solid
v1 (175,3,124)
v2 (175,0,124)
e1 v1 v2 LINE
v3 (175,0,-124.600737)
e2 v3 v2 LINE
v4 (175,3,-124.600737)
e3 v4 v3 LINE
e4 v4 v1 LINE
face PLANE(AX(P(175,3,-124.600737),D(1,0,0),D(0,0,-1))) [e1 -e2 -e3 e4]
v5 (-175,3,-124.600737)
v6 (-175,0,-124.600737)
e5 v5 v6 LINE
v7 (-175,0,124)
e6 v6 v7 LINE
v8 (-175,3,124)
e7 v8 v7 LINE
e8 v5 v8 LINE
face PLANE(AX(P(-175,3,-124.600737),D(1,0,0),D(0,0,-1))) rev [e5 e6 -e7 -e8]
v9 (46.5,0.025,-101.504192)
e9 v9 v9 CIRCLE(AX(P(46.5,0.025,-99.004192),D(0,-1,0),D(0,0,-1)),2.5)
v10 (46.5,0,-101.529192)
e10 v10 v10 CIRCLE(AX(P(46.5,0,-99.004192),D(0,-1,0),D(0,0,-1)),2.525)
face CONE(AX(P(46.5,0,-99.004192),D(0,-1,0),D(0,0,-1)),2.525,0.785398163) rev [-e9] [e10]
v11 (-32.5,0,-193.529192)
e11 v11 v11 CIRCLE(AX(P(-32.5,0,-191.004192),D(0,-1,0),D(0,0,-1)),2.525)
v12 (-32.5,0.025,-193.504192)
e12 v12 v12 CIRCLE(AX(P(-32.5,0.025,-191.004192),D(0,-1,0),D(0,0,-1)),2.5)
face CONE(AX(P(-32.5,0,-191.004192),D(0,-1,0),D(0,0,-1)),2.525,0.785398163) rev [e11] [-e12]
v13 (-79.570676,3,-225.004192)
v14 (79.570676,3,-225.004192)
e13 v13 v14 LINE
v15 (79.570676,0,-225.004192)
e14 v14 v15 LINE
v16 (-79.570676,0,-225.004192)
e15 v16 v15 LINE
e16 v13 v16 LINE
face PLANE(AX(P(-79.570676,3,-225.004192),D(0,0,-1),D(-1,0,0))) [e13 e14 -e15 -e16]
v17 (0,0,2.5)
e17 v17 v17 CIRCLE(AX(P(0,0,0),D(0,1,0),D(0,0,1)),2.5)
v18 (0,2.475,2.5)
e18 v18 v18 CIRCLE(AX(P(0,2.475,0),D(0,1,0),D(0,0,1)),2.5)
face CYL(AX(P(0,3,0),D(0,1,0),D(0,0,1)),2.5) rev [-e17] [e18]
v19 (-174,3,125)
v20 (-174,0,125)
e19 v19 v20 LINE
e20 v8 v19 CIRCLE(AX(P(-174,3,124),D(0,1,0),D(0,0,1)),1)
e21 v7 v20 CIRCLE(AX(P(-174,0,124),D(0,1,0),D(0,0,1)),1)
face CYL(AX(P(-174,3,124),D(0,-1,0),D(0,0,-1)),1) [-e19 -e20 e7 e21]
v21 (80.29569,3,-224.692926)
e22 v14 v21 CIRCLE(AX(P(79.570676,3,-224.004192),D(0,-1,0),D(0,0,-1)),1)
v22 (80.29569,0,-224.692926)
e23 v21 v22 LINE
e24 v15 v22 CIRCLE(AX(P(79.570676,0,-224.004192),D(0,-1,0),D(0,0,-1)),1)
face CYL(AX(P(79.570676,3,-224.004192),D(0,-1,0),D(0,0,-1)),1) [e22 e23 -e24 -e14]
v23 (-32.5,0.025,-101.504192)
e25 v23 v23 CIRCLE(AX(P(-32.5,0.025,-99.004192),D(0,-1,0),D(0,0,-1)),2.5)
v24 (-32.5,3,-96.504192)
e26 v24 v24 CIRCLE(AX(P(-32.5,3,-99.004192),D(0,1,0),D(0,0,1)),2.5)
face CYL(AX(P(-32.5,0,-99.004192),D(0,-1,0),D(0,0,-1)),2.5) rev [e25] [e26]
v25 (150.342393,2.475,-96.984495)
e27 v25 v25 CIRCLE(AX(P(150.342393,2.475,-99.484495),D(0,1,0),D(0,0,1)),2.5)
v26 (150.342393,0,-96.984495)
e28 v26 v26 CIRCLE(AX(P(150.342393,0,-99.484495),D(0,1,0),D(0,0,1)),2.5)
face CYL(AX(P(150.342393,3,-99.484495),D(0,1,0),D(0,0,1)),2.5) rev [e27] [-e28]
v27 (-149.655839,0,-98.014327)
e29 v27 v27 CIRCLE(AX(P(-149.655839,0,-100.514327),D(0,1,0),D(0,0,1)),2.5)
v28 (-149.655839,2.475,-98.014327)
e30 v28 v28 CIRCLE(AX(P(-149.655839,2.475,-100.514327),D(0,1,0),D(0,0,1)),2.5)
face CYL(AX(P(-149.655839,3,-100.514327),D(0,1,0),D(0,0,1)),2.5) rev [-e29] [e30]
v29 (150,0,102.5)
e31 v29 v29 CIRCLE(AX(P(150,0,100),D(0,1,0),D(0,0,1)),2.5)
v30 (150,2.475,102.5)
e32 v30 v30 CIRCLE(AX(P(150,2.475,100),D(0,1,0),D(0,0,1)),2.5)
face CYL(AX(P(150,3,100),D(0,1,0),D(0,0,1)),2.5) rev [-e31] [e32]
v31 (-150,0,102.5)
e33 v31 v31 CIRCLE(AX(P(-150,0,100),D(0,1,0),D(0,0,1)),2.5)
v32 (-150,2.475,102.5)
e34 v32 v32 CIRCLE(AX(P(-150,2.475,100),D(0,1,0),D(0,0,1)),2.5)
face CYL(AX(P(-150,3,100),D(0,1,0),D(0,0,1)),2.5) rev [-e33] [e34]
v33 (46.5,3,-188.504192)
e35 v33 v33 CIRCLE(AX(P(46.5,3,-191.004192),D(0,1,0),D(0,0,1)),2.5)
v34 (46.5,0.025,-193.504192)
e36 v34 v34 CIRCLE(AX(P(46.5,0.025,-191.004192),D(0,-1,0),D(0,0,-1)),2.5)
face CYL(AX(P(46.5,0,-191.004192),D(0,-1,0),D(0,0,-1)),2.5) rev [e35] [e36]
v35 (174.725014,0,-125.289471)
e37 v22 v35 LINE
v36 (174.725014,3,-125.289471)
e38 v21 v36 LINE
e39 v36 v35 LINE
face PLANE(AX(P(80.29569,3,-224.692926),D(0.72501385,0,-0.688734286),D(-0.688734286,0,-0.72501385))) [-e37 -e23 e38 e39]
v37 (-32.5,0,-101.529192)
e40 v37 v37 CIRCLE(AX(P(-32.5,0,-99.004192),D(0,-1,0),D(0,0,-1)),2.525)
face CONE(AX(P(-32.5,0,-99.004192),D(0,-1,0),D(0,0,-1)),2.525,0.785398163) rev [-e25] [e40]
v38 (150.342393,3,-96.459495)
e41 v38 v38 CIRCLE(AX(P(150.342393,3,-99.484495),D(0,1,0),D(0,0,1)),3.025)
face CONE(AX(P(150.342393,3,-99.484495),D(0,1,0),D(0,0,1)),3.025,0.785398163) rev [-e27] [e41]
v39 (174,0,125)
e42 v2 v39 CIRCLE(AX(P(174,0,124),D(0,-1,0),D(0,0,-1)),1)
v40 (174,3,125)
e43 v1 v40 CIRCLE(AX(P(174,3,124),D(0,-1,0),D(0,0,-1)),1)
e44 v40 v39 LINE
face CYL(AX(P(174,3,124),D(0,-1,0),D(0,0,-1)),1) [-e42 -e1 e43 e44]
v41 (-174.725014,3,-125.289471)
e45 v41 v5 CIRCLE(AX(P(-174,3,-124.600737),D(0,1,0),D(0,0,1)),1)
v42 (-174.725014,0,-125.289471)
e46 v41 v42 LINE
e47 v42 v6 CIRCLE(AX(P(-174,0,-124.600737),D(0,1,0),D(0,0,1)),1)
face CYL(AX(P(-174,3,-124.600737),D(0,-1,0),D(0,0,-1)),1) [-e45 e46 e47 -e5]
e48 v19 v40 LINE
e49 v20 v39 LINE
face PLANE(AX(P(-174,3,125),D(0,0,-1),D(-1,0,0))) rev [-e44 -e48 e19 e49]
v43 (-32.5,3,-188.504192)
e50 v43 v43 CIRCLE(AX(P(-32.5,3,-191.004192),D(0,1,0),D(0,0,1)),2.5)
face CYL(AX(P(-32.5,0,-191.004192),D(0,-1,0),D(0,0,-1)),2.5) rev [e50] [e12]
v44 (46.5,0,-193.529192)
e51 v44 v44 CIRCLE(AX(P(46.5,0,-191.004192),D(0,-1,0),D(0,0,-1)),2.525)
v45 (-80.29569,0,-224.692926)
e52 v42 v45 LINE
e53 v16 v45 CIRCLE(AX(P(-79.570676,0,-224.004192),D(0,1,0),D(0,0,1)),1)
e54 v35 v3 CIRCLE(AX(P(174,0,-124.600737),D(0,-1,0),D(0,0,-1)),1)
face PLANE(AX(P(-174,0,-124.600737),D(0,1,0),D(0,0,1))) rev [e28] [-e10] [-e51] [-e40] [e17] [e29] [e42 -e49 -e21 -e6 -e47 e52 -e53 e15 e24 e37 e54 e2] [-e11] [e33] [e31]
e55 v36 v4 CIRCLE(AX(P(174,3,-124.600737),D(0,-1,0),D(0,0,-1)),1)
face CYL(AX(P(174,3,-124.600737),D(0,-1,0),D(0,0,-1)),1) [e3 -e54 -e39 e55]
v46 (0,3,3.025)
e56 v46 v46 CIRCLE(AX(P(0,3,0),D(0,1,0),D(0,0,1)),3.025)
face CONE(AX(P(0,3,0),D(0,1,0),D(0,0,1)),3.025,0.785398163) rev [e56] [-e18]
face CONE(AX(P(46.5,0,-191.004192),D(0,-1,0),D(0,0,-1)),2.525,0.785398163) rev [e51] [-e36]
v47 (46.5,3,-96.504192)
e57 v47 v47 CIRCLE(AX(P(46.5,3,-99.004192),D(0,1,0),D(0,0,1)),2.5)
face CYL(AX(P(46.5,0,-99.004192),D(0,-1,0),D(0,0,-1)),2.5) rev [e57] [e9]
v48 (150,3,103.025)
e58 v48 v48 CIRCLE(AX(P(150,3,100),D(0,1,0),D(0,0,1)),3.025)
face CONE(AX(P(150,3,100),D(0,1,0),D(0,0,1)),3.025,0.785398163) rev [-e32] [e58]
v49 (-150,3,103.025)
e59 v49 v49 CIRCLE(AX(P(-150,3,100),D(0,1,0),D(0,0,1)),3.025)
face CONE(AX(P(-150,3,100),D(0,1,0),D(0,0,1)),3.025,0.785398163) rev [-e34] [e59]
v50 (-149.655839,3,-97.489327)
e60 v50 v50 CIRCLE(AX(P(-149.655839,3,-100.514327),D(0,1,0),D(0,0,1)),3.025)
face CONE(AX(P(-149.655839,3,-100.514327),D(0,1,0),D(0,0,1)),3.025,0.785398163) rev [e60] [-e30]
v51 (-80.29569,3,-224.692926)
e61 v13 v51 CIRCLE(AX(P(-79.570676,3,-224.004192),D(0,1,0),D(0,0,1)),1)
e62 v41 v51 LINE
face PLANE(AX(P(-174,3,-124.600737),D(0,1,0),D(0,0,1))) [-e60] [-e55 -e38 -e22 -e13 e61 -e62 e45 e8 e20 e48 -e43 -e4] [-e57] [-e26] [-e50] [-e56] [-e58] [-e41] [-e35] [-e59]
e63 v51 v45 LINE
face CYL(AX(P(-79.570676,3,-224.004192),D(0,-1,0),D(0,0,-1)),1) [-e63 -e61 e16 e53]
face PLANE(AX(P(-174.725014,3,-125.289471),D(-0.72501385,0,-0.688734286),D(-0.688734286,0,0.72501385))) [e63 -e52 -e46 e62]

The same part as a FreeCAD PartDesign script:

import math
import FreeCAD as App
import Part
import Sketcher
from FreeCAD import Vector
Q = App.Units.Quantity

doc = App.newDocument("Part")
body = doc.addObject("PartDesign::Body", "Body")

# Sketch on XZ plane
sketch1 = body.newObject("Sketcher::SketchObject", "Sketch")
sketch1.AttachmentSupport = (doc.getObject("XZ_Plane"), [""])
sketch1.MapMode = "FlatFace"
sketch1.addGeometry(Part.LineSegment(Vector(79.570676, -225.004192, 0), Vector(-79.570676, -225.004192, 0)), False)
sketch1.addGeometry(Part.ArcOfCircle(Part.Circle(Vector(-79.570676, -224.004192, 0), Vector(0, 0, 1), 1), math.radians(-136.47), math.radians(-90)), False)
sketch1.addGeometry(Part.LineSegment(Vector(-80.29569, -224.692926, 0), Vector(-174.725014, -125.289471, 0)), False)
sketch1.addGeometry(Part.ArcOfCircle(Part.Circle(Vector(-174, -124.600737, 0), Vector(0, 0, 1), 1), math.radians(-180), math.radians(-136.47)), False)
sketch1.addGeometry(Part.LineSegment(Vector(-175, -124.600737, 0), Vector(-175, 124, 0)), False)
sketch1.addGeometry(Part.ArcOfCircle(Part.Circle(Vector(-174, 124, 0), Vector(0, 0, 1), 1), math.radians(90), math.radians(180)), False)
sketch1.addGeometry(Part.LineSegment(Vector(-174, 125, 0), Vector(174, 125, 0)), False)
sketch1.addGeometry(Part.ArcOfCircle(Part.Circle(Vector(174, 124, 0), Vector(0, 0, 1), 1), math.radians(0), math.radians(90)), False)
sketch1.addGeometry(Part.LineSegment(Vector(175, 124, 0), Vector(175, -124.600737, 0)), False)
sketch1.addGeometry(Part.ArcOfCircle(Part.Circle(Vector(174, -124.600737, 0), Vector(0, 0, 1), 1), math.radians(-43.53), math.radians(0)), False)
sketch1.addGeometry(Part.LineSegment(Vector(174.725014, -125.289471, 0), Vector(80.29569, -224.692926, 0)), False)
sketch1.addGeometry(Part.ArcOfCircle(Part.Circle(Vector(79.570676, -224.004192, 0), Vector(0, 0, 1), 1), math.radians(-90), math.radians(-43.53)), False)
sketch1.addConstraint(Sketcher.Constraint("Tangent", 0, 2, 1, 2))
sketch1.addConstraint(Sketcher.Constraint("Tangent", 1, 1, 2, 1))
sketch1.addConstraint(Sketcher.Constraint("Tangent", 2, 2, 3, 2))
sketch1.addConstraint(Sketcher.Constraint("Tangent", 3, 1, 4, 1))
sketch1.addConstraint(Sketcher.Constraint("Tangent", 4, 2, 5, 2))
sketch1.addConstraint(Sketcher.Constraint("Tangent", 5, 1, 6, 1))
sketch1.addConstraint(Sketcher.Constraint("Tangent", 6, 2, 7, 2))
sketch1.addConstraint(Sketcher.Constraint("Tangent", 7, 1, 8, 1))
sketch1.addConstraint(Sketcher.Constraint("Tangent", 8, 2, 9, 2))
sketch1.addConstraint(Sketcher.Constraint("Tangent", 9, 1, 10, 1))
sketch1.addConstraint(Sketcher.Constraint("Tangent", 10, 2, 11, 2))
sketch1.addConstraint(Sketcher.Constraint("Tangent", 11, 1, 0, 1))
sketch1.addConstraint(Sketcher.Constraint("Horizontal", 0))
sketch1.addConstraint(Sketcher.Constraint("Vertical", 4))
sketch1.addConstraint(Sketcher.Constraint("Horizontal", 6))
sketch1.addConstraint(Sketcher.Constraint("Vertical", 8))
sketch1.addConstraint(Sketcher.Constraint("Equal", 1, 3))
sketch1.addConstraint(Sketcher.Constraint("Equal", 3, 5))
sketch1.addConstraint(Sketcher.Constraint("Equal", 5, 7))
sketch1.addConstraint(Sketcher.Constraint("Equal", 7, 9))
sketch1.addConstraint(Sketcher.Constraint("Equal", 9, 11))
sketch1.addConstraint(Sketcher.Constraint("Symmetric", 3, 3, 9, 3, -2))
sketch1.addConstraint(Sketcher.Constraint("Equal", 2, 10))
sketch1.addConstraint(Sketcher.Constraint("Radius", 1, Q("1 mm")))
sketch1.addConstraint(Sketcher.Constraint("DistanceX", 6, 1, 6, 2, Q("348 mm")))
sketch1.addConstraint(Sketcher.Constraint("DistanceY", -1, 1, 5, 3, Q("124 mm")))
sketch1.addConstraint(Sketcher.Constraint("Angle", 2, Q("133.53 deg")))
sketch1.addConstraint(Sketcher.Constraint("DistanceX", 0, 2, 0, 1, Q("159.141352 mm")))
sketch1.addConstraint(Sketcher.Constraint("DistanceY", 4, 1, 4, 2, Q("248.600737 mm")))
pad1 = body.newObject("PartDesign::Pad", "Pad")
pad1.Profile = sketch1
pad1.Length = 3
pad1.Reversed = True

# Sketch on YZ plane
sketch2 = body.newObject("Sketcher::SketchObject", "Sketch001")
sketch2.AttachmentSupport = (doc.getObject("YZ_Plane"), [""])
sketch2.MapMode = "FlatFace"
sketch2.AttachmentOffset = App.Placement(Vector(0, 0, -150), App.Rotation())
sketch2.addGeometry(Part.LineSegment(Vector(0, 100, 0), Vector(3, 100, 0)), False)
sketch2.addGeometry(Part.LineSegment(Vector(3, 100, 0), Vector(3, 103.025, 0)), False)
sketch2.addGeometry(Part.LineSegment(Vector(3, 103.025, 0), Vector(2.475, 102.5, 0)), False)
sketch2.addGeometry(Part.LineSegment(Vector(2.475, 102.5, 0), Vector(0, 102.5, 0)), False)
sketch2.addGeometry(Part.LineSegment(Vector(0, 102.5, 0), Vector(0, 100, 0)), False)
sketch2.addGeometry(Part.LineSegment(Vector(3, 100, 0), Vector(0, 100, 0)), True)  # axis
sketch2.addConstraint(Sketcher.Constraint("Coincident", 0, 2, 1, 1))
sketch2.addConstraint(Sketcher.Constraint("Coincident", 1, 2, 2, 1))
sketch2.addConstraint(Sketcher.Constraint("Coincident", 2, 2, 3, 1))
sketch2.addConstraint(Sketcher.Constraint("Coincident", 3, 2, 4, 1))
sketch2.addConstraint(Sketcher.Constraint("Coincident", 4, 2, 0, 1))
sketch2.addConstraint(Sketcher.Constraint("Horizontal", 0))
sketch2.addConstraint(Sketcher.Constraint("Vertical", 1))
sketch2.addConstraint(Sketcher.Constraint("Horizontal", 3))
sketch2.addConstraint(Sketcher.Constraint("Vertical", 4))
sketch2.addConstraint(Sketcher.Constraint("Horizontal", 5))
sketch2.addConstraint(Sketcher.Constraint("Coincident", 5, 1, 0, 2))
sketch2.addConstraint(Sketcher.Constraint("PointOnObject", 3, 2, -2))
sketch2.addConstraint(Sketcher.Constraint("PointOnObject", 5, 2, -2))
sketch2.addConstraint(Sketcher.Constraint("DistanceX", 0, 1, 0, 2, Q("3 mm")))
sketch2.addConstraint(Sketcher.Constraint("Angle", 2, Q("-135 deg")))
sketch2.addConstraint(Sketcher.Constraint("DistanceY", 4, 2, 4, 1, Q("2.5 mm")))
sketch2.addConstraint(Sketcher.Constraint("DistanceY", -1, 1, 0, 2, Q("100 mm")))
sketch2.addConstraint(Sketcher.Constraint("DistanceX", 3, 2, 3, 1, Q("2.475 mm")))
groove = body.newObject("PartDesign::Groove", "Groove")
groove.Profile = sketch2
groove.ReferenceAxis = (sketch2, ["Axis0"])
groove.Angle = 360
doc.recompute()

linearpattern = body.newObject("PartDesign::LinearPattern", "LinearPattern")
linearpattern.Originals = [groove]
linearpattern.Direction = (doc.getObject("X_Axis"), [""])
linearpattern.Mode = "offset"
linearpattern.Offset = 300
linearpattern.Occurrences = 2
body.Tip = linearpattern
doc.recompute()

datumline = body.newObject("PartDesign::Line", "DatumLine")
datumline.Placement = App.Placement(Vector(0, 0, 0), App.Rotation(Vector(0, 0, 1), Vector(0.832050294, 0, -0.554700196)))
linearpattern2 = body.newObject("PartDesign::LinearPattern", "LinearPattern001")
linearpattern2.Originals = [groove]
linearpattern2.Direction = (datumline, [""])
linearpattern2.Mode = "offset"
linearpattern2.Offset = 180.277564
linearpattern2.Occurrences = 2
body.Tip = linearpattern2
doc.recompute()

datumline2 = body.newObject("PartDesign::Line", "DatumLine001")
datumline2.Placement = App.Placement(Vector(0, 0, 0), App.Rotation(Vector(0, 0, 1), Vector(0.001716389, 0, -0.999998527)))
linearpattern3 = body.newObject("PartDesign::LinearPattern", "LinearPattern002")
linearpattern3.Originals = [groove]
linearpattern3.Direction = (datumline2, [""])
linearpattern3.Mode = "offset"
linearpattern3.Offset = 200.514622
linearpattern3.Occurrences = 2
body.Tip = linearpattern3
doc.recompute()

datumline3 = body.newObject("PartDesign::Line", "DatumLine002")
datumline3.Placement = App.Placement(Vector(0, 0, 0), App.Rotation(Vector(0, 0, 1), Vector(0.83300115, 0, -0.553271257)))
linearpattern4 = body.newObject("PartDesign::LinearPattern", "LinearPattern003")
linearpattern4.Originals = [groove]
linearpattern4.Direction = (datumline3, [""])
linearpattern4.Mode = "offset"
linearpattern4.Offset = 360.554596
linearpattern4.Occurrences = 2
body.Tip = linearpattern4

# Sketch on XZ plane
sketch3 = body.newObject("Sketcher::SketchObject", "Sketch002")
sketch3.AttachmentSupport = (doc.getObject("XZ_Plane"), [""])
sketch3.MapMode = "FlatFace"
sketch3.addGeometry(Part.Circle(Vector(46.5, -191.004192, 0), Vector(0, 0, 1), 2.5), False)
sketch3.addGeometry(Part.Circle(Vector(-32.5, -191.004192, 0), Vector(0, 0, 1), 2.5), False)
sketch3.addGeometry(Part.Circle(Vector(-32.5, -99.004192, 0), Vector(0, 0, 1), 2.5), False)
sketch3.addGeometry(Part.Circle(Vector(46.5, -99.004192, 0), Vector(0, 0, 1), 2.5), False)
sketch3.addConstraint(Sketcher.Constraint("Equal", 0, 1))
sketch3.addConstraint(Sketcher.Constraint("Equal", 1, 2))
sketch3.addConstraint(Sketcher.Constraint("Equal", 2, 3))
sketch3.addConstraint(Sketcher.Constraint("Horizontal", 0, 3, 1, 3))
sketch3.addConstraint(Sketcher.Constraint("Horizontal", 2, 3, 3, 3))
sketch3.addConstraint(Sketcher.Constraint("Vertical", 1, 3, 2, 3))
sketch3.addConstraint(Sketcher.Constraint("Vertical", 0, 3, 3, 3))
sketch3.addConstraint(Sketcher.Constraint("Diameter", 0, Q("5 mm")))
sketch3.addConstraint(Sketcher.Constraint("DistanceX", 1, 3, 0, 3, Q("79 mm")))
sketch3.addConstraint(Sketcher.Constraint("DistanceY", 1, 3, 2, 3, Q("92 mm")))
sketch3.addConstraint(Sketcher.Constraint("DistanceX", -1, 1, 0, 3, Q("46.5 mm")))
sketch3.addConstraint(Sketcher.Constraint("DistanceY", 0, 3, -1, 1, Q("191.004192 mm")))
doc.recompute()
hole = body.newObject("PartDesign::Hole", "Hole")
hole.Profile = sketch3
hole.ThreadType = "None"
hole.Diameter = 5
hole.DepthType = "Dimension"
hole.Depth = 10
hole.DrillPoint = "Angled"
hole.DrillPointAngle = 118
hole.HoleCutType = "Countersink"
hole.HoleCutDiameter = 5.05
hole.HoleCutCountersinkAngle = 90

doc.recompute()
